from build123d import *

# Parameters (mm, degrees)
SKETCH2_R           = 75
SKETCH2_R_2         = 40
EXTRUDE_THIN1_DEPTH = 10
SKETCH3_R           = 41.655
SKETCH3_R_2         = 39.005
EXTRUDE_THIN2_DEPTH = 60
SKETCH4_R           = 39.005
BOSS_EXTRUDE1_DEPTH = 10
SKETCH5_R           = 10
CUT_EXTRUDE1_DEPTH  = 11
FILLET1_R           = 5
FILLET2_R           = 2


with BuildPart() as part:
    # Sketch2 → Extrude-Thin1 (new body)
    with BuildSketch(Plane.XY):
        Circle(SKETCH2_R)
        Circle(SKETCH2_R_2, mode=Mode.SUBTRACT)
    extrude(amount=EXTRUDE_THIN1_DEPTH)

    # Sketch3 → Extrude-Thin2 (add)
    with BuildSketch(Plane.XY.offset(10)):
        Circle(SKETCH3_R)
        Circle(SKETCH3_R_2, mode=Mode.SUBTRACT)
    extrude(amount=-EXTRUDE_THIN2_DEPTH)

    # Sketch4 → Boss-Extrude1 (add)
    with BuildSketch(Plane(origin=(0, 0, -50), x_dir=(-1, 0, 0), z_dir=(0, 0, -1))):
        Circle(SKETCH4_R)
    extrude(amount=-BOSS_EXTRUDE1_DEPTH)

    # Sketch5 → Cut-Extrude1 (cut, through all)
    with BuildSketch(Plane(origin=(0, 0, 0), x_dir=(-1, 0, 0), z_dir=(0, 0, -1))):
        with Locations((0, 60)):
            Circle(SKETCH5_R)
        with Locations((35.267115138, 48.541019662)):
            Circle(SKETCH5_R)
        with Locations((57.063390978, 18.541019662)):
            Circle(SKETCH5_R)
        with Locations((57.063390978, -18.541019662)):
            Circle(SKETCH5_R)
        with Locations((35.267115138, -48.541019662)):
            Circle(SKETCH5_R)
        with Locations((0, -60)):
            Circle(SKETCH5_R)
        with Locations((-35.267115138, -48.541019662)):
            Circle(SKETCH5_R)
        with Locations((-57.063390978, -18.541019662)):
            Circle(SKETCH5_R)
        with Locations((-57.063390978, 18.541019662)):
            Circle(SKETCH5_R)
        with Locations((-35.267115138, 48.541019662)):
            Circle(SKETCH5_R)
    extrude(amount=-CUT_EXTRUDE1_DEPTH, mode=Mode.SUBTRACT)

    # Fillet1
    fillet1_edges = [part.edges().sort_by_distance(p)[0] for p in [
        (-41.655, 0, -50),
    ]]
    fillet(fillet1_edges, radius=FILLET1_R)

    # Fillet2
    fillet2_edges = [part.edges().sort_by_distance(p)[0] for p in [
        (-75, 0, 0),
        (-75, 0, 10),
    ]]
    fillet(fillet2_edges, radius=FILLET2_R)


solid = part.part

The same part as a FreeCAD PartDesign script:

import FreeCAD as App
import Part
import Sketcher

V = App.Vector


def edges_at(feature, points):
    """Names of the edges that pass closest to the given points."""
    edges = feature.Shape.Edges
    near = lambda p: min(range(len(edges)), key=lambda i: edges[i].distToShape(Part.Vertex(*p))[0])
    return sorted({f"Edge{near(p) + 1}" for p in points})

doc = App.newDocument("Part")
body = doc.addObject("PartDesign::Body", "Body")

# Sketch on XY plane
sketch1 = body.newObject("Sketcher::SketchObject", "Sketch")
sketch1.AttachmentSupport = (doc.getObject("XY_Plane"), [""])
sketch1.MapMode = "FlatFace"
sketch1.addGeometry(Part.Circle(V(0, 0, 0), V(0, 0, 1), 75), False)
sketch1.addGeometry(Part.Circle(V(0, 0, 0), V(0, 0, 1), 40), False)
sketch1.addConstraint(Sketcher.Constraint("Coincident", 0, 3, -1, 1))
sketch1.addConstraint(Sketcher.Constraint("Coincident", 1, 3, -1, 1))
sketch1.addConstraint(Sketcher.Constraint("Diameter", 0, 150.0))
sketch1.addConstraint(Sketcher.Constraint("Diameter", 1, 80.0))
pad1 = body.newObject("PartDesign::Pad", "Pad")
pad1.Profile = sketch1
pad1.Length = 10

# Sketch on XY plane
sketch2 = body.newObject("Sketcher::SketchObject", "Sketch001")
sketch2.AttachmentSupport = (doc.getObject("XY_Plane"), [""])
sketch2.MapMode = "FlatFace"
sketch2.AttachmentOffset = App.Placement(V(0, 0, 10), App.Rotation())
sketch2.addGeometry(Part.Circle(V(0, 0, 0), V(0, 0, 1), 41.655), False)
sketch2.addGeometry(Part.Circle(V(0, 0, 0), V(0, 0, 1), 39.005), False)
sketch2.addConstraint(Sketcher.Constraint("Coincident", 0, 3, -1, 1))
sketch2.addConstraint(Sketcher.Constraint("Coincident", 1, 3, -1, 1))
sketch2.addConstraint(Sketcher.Constraint("Diameter", 0, 83.31))
sketch2.addConstraint(Sketcher.Constraint("Diameter", 1, 78.01))
pad2 = body.newObject("PartDesign::Pad", "Pad001")
pad2.Profile = sketch2
pad2.Length = 60
pad2.Reversed = True

# Sketch on XY plane
sketch3 = body.newObject("Sketcher::SketchObject", "Sketch002")
sketch3.AttachmentSupport = (doc.getObject("XY_Plane"), [""])
sketch3.MapMode = "FlatFace"
sketch3.AttachmentOffset = App.Placement(V(0, 0, -50), App.Rotation())
sketch3.addGeometry(Part.Circle(V(0, 0, 0), V(0, 0, 1), 39.005), False)
sketch3.addConstraint(Sketcher.Constraint("Coincident", 0, 3, -1, 1))
sketch3.addConstraint(Sketcher.Constraint("Diameter", 0, 78.01))
pad3 = body.newObject("PartDesign::Pad", "Pad002")
pad3.Profile = sketch3
pad3.Length = 10

# Sketch on XY plane
sketch4 = body.newObject("Sketcher::SketchObject", "Sketch003")
sketch4.AttachmentSupport = (doc.getObject("XY_Plane"), [""])
sketch4.MapMode = "FlatFace"
sketch4.addGeometry(Part.Circle(V(0, 60, 0), V(0, 0, 1), 10), False)
sketch4.addGeometry(Part.Circle(V(-35.267115, 48.54102, 0), V(0, 0, 1), 10), False)
sketch4.addGeometry(Part.Circle(V(-57.063391, 18.54102, 0), V(0, 0, 1), 10), False)
sketch4.addGeometry(Part.Circle(V(-57.063391, -18.54102, 0), V(0, 0, 1), 10), False)
sketch4.addGeometry(Part.Circle(V(-35.267115, -48.54102, 0), V(0, 0, 1), 10), False)
sketch4.addGeometry(Part.Circle(V(0, -60, 0), V(0, 0, 1), 10), False)
sketch4.addGeometry(Part.Circle(V(35.267115, -48.54102, 0), V(0, 0, 1), 10), False)
sketch4.addGeometry(Part.Circle(V(57.063391, -18.54102, 0), V(0, 0, 1), 10), False)
sketch4.addGeometry(Part.Circle(V(57.063391, 18.54102, 0), V(0, 0, 1), 10), False)
sketch4.addGeometry(Part.Circle(V(35.267115, 48.54102, 0), V(0, 0, 1), 10), False)
sketch4.addConstraint(Sketcher.Constraint("Equal", 0, 1))
sketch4.addConstraint(Sketcher.Constraint("Equal", 1, 2))
sketch4.addConstraint(Sketcher.Constraint("Equal", 2, 3))
sketch4.addConstraint(Sketcher.Constraint("Equal", 3, 4))
sketch4.addConstraint(Sketcher.Constraint("Equal", 4, 5))
sketch4.addConstraint(Sketcher.Constraint("Equal", 5, 6))
sketch4.addConstraint(Sketcher.Constraint("Equal", 6, 7))
sketch4.addConstraint(Sketcher.Constraint("Equal", 7, 8))
sketch4.addConstraint(Sketcher.Constraint("Equal", 8, 9))
sketch4.addConstraint(Sketcher.Constraint("Symmetric", 0, 3, 5, 3, -1, 1))
sketch4.addConstraint(Sketcher.Constraint("Symmetric", 1, 3, 6, 3, -1, 1))
sketch4.addConstraint(Sketcher.Constraint("Symmetric", 2, 3, 7, 3, -1, 1))
sketch4.addConstraint(Sketcher.Constraint("Symmetric", 3, 3, 8, 3, -1, 1))
sketch4.addConstraint(Sketcher.Constraint("Symmetric", 4, 3, 9, 3, -1, 1))
sketch4.addConstraint(Sketcher.Constraint("Symmetric", 4, 3, 6, 3, -2))
sketch4.addConstraint(Sketcher.Constraint("Symmetric", 3, 3, 7, 3, -2))
sketch4.addConstraint(Sketcher.Constraint("PointOnObject", 0, 3, -2))
sketch4.addConstraint(Sketcher.Constraint("Diameter", 0, 20.0))
sketch4.addConstraint(Sketcher.Constraint("DistanceY", -1, 1, 0, 3, 60.0))
sketch4.addConstraint(Sketcher.Constraint("DistanceY", 2, 3, 1, 3, 30.0))
sketch4.addConstraint(Sketcher.Constraint("DistanceY", -1, 1, 1, 3, 48.54102))
sketch4.addConstraint(Sketcher.Constraint("DistanceX", 2, 3, -1, 1, 57.063391))
sketch4.addConstraint(Sketcher.Constraint("DistanceX", 4, 3, 6, 3, 70.53423))
pocket1 = body.newObject("PartDesign::Pocket", "Pocket")
pocket1.Profile = sketch4
pocket1.Type = "ThroughAll"
pocket1.Reversed = True
doc.recompute()

fillet = body.newObject("PartDesign::Fillet", "Fillet")
fillet.Base = (pocket1, edges_at(pocket1, [(-41.655, 0, -50)]))
fillet.Radius = 5
doc.recompute()

fillet2 = body.newObject("PartDesign::Fillet", "Fillet001")
fillet2.Base = (fillet, edges_at(fillet, [(-75, 0, 0), (-75, 0, 10)]))
fillet2.Radius = 2

doc.recompute()
